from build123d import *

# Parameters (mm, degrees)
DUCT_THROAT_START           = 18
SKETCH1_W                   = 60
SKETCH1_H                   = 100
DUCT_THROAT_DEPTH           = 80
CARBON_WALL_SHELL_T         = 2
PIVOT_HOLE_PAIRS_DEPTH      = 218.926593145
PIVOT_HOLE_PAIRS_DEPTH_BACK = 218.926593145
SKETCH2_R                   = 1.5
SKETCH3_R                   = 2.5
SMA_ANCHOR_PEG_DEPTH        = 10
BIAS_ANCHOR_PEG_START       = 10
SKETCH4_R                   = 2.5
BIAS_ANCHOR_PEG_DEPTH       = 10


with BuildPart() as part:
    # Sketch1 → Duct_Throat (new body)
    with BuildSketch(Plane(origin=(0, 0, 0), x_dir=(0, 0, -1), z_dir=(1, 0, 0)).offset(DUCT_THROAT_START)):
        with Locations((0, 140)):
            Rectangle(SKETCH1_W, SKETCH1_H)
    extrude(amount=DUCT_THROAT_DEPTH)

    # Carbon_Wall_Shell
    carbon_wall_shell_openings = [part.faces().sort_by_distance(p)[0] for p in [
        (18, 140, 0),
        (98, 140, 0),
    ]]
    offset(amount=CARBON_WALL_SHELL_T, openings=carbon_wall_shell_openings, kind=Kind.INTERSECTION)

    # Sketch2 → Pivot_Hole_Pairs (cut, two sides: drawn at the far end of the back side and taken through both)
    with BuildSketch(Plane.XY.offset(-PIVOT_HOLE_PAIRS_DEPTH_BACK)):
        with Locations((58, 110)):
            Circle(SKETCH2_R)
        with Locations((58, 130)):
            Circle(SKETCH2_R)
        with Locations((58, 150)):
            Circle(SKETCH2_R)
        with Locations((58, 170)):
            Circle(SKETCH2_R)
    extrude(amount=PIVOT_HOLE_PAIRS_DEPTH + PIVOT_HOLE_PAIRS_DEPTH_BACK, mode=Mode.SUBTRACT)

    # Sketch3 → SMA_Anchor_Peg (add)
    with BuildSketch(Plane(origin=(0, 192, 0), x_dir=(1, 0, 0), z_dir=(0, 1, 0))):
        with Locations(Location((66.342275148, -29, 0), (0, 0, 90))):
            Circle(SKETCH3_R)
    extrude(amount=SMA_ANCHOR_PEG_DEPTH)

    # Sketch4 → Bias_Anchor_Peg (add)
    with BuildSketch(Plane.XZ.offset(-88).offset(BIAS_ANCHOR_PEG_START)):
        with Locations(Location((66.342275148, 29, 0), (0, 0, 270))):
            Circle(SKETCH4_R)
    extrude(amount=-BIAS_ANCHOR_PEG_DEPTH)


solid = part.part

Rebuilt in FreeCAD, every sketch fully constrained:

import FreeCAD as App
import Part
import Sketcher
from FreeCAD import Vector


def faces_at(feature, points):
    """Names of the faces that lie closest to the given points."""
    faces = feature.Shape.Faces
    near = lambda p: min(range(len(faces)), key=lambda i: faces[i].distToShape(Part.Vertex(*p))[0])
    return sorted({f"Face{near(p) + 1}" for p in points})


def add_polygon(sketch, points):
    """Adds a closed chain of lines whose ends are joined by coincident constraints."""
    first, n = sketch.GeometryCount, len(points)
    for a, b in zip(points, points[1:] + points[:1]):
        sketch.addGeometry(Part.LineSegment(App.Vector(*a, 0), App.Vector(*b, 0)), False)
    for i in range(n):
        sketch.addConstraint(Sketcher.Constraint("Coincident", first + i, 2, first + (i + 1) % n, 1))

doc = App.newDocument("Part")
body = doc.addObject("PartDesign::Body", "Body")

sketch1 = body.newObject("Sketcher::SketchObject", "Sketch")
sketch1.AttachmentSupport = (doc.getObject("YZ_Plane"), [""])
sketch1.MapMode = "FlatFace"
sketch1.AttachmentOffset = App.Placement(Vector(0, 0, 18), App.Rotation())
add_polygon(sketch1, [(190, 30), (90, 30), (90, -30), (190, -30)])
sketch1.addConstraint(Sketcher.Constraint("Horizontal", 0))
sketch1.addConstraint(Sketcher.Constraint("Vertical", 1))
sketch1.addConstraint(Sketcher.Constraint("Horizontal", 2))
sketch1.addConstraint(Sketcher.Constraint("Vertical", 3))
sketch1.addConstraint(Sketcher.Constraint("DistanceX", 0, 2, 0, 1, 100.0))
sketch1.addConstraint(Sketcher.Constraint("DistanceY", 1, 2, 1, 1, 60.0))
sketch1.addConstraint(Sketcher.Constraint("DistanceX", -1, 1, 0, 2, 90.0))
sketch1.addConstraint(Sketcher.Constraint("DistanceY", -1, 1, 0, 2, 30.0))
pad1 = body.newObject("PartDesign::Pad", "Pad")
pad1.Profile = sketch1
pad1.Length = 80
doc.recompute()

thickness = body.newObject("PartDesign::Thickness", "Thickness")
thickness.Base = (pad1, faces_at(pad1, [(18, 140, 0), (98, 140, 0)]))
thickness.Value = 2
thickness.Reversed = False
thickness.Join = "Intersection"

sketch2 = body.newObject("Sketcher::SketchObject", "Sketch001")
sketch2.AttachmentSupport = (doc.getObject("XY_Plane"), [""])
sketch2.MapMode = "FlatFace"
sketch2.addGeometry(Part.Circle(Vector(58, 110, 0), Vector(0, 0, 1), 1.5), False)
sketch2.addGeometry(Part.Circle(Vector(58, 130, 0), Vector(0, 0, 1), 1.5), False)
sketch2.addGeometry(Part.Circle(Vector(58, 150, 0), Vector(0, 0, 1), 1.5), False)
sketch2.addGeometry(Part.Circle(Vector(58, 170, 0), Vector(0, 0, 1), 1.5), False)
sketch2.addConstraint(Sketcher.Constraint("Equal", 0, 1))
sketch2.addConstraint(Sketcher.Constraint("Equal", 1, 2))
sketch2.addConstraint(Sketcher.Constraint("Equal", 2, 3))
sketch2.addConstraint(Sketcher.Constraint("Vertical", 0, 3, 1, 3))
sketch2.addConstraint(Sketcher.Constraint("Vertical", 1, 3, 2, 3))
sketch2.addConstraint(Sketcher.Constraint("Vertical", 2, 3, 3, 3))
sketch2.addConstraint(Sketcher.Constraint("Diameter", 0, 3.0))
sketch2.addConstraint(Sketcher.Constraint("DistanceX", -1, 1, 0, 3, 58.0))
sketch2.addConstraint(Sketcher.Constraint("DistanceY", -1, 1, 0, 3, 110.0))
sketch2.addConstraint(Sketcher.Constraint("DistanceY", -1, 1, 1, 3, 130.0))
sketch2.addConstraint(Sketcher.Constraint("DistanceY", -1, 1, 2, 3, 150.0))
sketch2.addConstraint(Sketcher.Constraint("DistanceY", -1, 1, 3, 3, 170.0))
pocket1 = body.newObject("PartDesign::Pocket", "Pocket")
pocket1.Profile = sketch2
pocket1.Type = "ThroughAll"
pocket1.Midplane = True

sketch3 = body.newObject("Sketcher::SketchObject", "Sketch002")
sketch3.AttachmentSupport = (doc.getObject("XZ_Plane"), [""])
sketch3.MapMode = "FlatFace"
sketch3.AttachmentOffset = App.Placement(Vector(0, 0, -192), App.Rotation())
sketch3.addGeometry(Part.Circle(Vector(66.342275, 29, 0), Vector(0, 0, 1), 2.5), False)
sketch3.addConstraint(Sketcher.Constraint("Diameter", 0, 5.0))
sketch3.addConstraint(Sketcher.Constraint("DistanceY", -1, 1, 0, 3, 29.0))
sketch3.addConstraint(Sketcher.Constraint("DistanceX", -1, 1, 0, 3, 66.342275))
pad2 = body.newObject("PartDesign::Pad", "Pad001")
pad2.Profile = sketch3
pad2.Length = 10
pad2.Reversed = True

sketch4 = body.newObject("Sketcher::SketchObject", "Sketch003")
sketch4.AttachmentSupport = (doc.getObject("XZ_Plane"), [""])
sketch4.MapMode = "FlatFace"
sketch4.AttachmentOffset = App.Placement(Vector(0, 0, -78), App.Rotation())
sketch4.addGeometry(Part.Circle(Vector(66.342275, 29, 0), Vector(0, 0, 1), 2.5), False)
sketch4.addConstraint(Sketcher.Constraint("Diameter", 0, 5.0))
sketch4.addConstraint(Sketcher.Constraint("DistanceY", -1, 1, 0, 3, 29.0))
sketch4.addConstraint(Sketcher.Constraint("DistanceX", -1, 1, 0, 3, 66.342275))
pad3 = body.newObject("PartDesign::Pad", "Pad002")
pad3.Profile = sketch4
pad3.Length = 10
pad3.Reversed = True

doc.recompute()
